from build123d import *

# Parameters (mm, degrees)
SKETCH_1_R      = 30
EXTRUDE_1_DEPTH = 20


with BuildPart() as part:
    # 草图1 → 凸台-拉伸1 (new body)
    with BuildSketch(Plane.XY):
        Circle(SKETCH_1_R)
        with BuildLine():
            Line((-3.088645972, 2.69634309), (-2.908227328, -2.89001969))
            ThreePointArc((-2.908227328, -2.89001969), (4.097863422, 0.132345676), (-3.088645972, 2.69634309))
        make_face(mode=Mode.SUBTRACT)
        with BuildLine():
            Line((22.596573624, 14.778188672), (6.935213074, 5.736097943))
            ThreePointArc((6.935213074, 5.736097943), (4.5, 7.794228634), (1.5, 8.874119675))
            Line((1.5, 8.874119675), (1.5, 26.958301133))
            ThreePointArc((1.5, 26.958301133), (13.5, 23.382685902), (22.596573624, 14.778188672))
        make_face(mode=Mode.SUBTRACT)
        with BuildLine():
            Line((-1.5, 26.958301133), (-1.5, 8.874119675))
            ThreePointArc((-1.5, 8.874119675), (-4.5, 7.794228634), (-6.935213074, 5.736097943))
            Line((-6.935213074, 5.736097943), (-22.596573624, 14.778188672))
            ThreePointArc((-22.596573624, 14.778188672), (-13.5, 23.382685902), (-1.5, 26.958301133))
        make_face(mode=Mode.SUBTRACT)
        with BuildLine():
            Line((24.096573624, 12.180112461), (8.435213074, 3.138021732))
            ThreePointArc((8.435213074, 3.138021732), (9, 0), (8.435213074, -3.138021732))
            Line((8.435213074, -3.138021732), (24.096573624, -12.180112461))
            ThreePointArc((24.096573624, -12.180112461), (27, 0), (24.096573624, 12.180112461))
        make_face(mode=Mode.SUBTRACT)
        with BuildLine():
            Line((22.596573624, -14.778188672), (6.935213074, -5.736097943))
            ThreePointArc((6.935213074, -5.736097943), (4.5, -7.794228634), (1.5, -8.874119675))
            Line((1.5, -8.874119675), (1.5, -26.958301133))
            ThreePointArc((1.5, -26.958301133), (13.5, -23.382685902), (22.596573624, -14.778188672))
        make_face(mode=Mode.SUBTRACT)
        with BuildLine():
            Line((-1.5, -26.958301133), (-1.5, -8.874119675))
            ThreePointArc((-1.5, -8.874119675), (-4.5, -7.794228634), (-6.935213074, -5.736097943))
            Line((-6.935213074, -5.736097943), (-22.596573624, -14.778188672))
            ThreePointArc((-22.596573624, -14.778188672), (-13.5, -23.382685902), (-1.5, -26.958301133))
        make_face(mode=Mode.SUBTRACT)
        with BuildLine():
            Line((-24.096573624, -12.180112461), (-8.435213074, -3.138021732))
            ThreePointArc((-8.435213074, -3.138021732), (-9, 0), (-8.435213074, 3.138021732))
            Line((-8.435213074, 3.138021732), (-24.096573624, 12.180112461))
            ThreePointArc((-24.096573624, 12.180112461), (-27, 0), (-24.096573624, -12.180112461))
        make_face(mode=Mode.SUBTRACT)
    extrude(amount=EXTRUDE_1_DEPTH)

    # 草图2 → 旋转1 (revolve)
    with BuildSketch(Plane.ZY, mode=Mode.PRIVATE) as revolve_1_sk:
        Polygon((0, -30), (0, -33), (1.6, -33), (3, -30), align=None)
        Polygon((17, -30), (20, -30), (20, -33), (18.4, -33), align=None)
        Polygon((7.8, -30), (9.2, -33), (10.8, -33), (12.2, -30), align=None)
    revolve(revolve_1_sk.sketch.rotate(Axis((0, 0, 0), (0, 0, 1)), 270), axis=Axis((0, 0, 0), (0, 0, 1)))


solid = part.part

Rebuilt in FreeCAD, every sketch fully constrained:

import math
import FreeCAD as App
import Part
import Sketcher

V = App.Vector
Q = App.Units.Quantity


def add_polygon(sketch, points):
    """Adds a closed chain of lines whose ends are joined by coincident constraints."""
    first, n = sketch.GeometryCount, len(points)
    for a, b in zip(points, points[1:] + points[:1]):
        sketch.addGeometry(Part.LineSegment(App.Vector(*a, 0), App.Vector(*b, 0)), False)
    for i in range(n):
        sketch.addConstraint(Sketcher.Constraint("Coincident", first + i, 2, first + (i + 1) % n, 1))

doc = App.newDocument("Part")
body = doc.addObject("PartDesign::Body", "Body")

sketch1 = doc.addObject("Sketcher::SketchObject", "Sketch")
body.addObject(sketch1)
sketch1.AttachmentSupport = (doc.XY_Plane, [""])
sketch1.MapMode = "FlatFace"
sketch1.addGeometry([
    Part.Circle(V(0, 0, 0), V(0, 0, 1), 30),
    Part.LineSegment(V(-1.5, -8.9, 0), V(-1.5, -27, 0)),
    Part.ArcOfCircle(Part.Circle(V(0, 0, 0), V(0, 0, 1), 27), math.radians(-147), math.radians(-93)),
    Part.LineSegment(V(-22.6, -14.8, 0), V(-6.9, -5.7, 0)),
    Part.ArcOfCircle(Part.Circle(V(0, 0, 0), V(0, 0, 1), 9), math.radians(-140), math.radians(-100)),
    Part.LineSegment(V(-8.4, -3.1, 0), V(-24.1, -12.2, 0)),
    Part.ArcOfCircle(Part.Circle(V(0, 0, 0), V(0, 0, 1), 27), math.radians(153), math.radians(207)),
    Part.LineSegment(V(-24.1, 12.2, 0), V(-8.4, 3.1, 0)),
    Part.ArcOfCircle(Part.Circle(V(0, 0, 0), V(0, 0, 1), 9), math.radians(160), math.radians(200)),
    Part.LineSegment(V(6.9, -5.7, 0), V(22.6, -14.8, 0)),
    Part.ArcOfCircle(Part.Circle(V(0, 0, 0), V(0, 0, 1), 27), math.radians(-87), math.radians(-33)),
    Part.LineSegment(V(1.5, -27, 0), V(1.5, -8.9, 0)),
    Part.ArcOfCircle(Part.Circle(V(0, 0, 0), V(0, 0, 1), 9), math.radians(-80), math.radians(-40)),
    Part.LineSegment(V(-2.9, -2.9, 0), V(-3.1, 2.7, 0)),
    Part.ArcOfCircle(Part.Circle(V(0, 0, 0), V(0, 0, 1), 4.1), math.radians(-135), math.radians(139)),
    Part.LineSegment(V(8.4, 3.1, 0), V(24.1, 12.2, 0)),
    Part.ArcOfCircle(Part.Circle(V(0, 0, 0), V(0, 0, 1), 27), math.radians(-27), math.radians(27)),
    Part.LineSegment(V(24.1, -12.2, 0), V(8.4, -3.1, 0)),
    Part.ArcOfCircle(Part.Circle(V(0, 0, 0), V(0, 0, 1), 9), math.radians(-20), math.radians(20)),
    Part.ArcOfCircle(Part.Circle(V(0, 0, 0), V(0, 0, 1), 27), math.radians(93), math.radians(147)),
    Part.LineSegment(V(-1.5, 27, 0), V(-1.5, 8.9, 0)),
    Part.ArcOfCircle(Part.Circle(V(0, 0, 0), V(0, 0, 1), 9), math.radians(100), math.radians(140)),
    Part.LineSegment(V(-6.9, 5.7, 0), V(-22.6, 14.8, 0)),
    Part.ArcOfCircle(Part.Circle(V(0, 0, 0), V(0, 0, 1), 27), math.radians(33), math.radians(87)),
    Part.LineSegment(V(22.6, 14.8, 0), V(6.9, 5.7, 0)),
    Part.ArcOfCircle(Part.Circle(V(0, 0, 0), V(0, 0, 1), 9), math.radians(40), math.radians(80)),
    Part.LineSegment(V(1.5, 8.9, 0), V(1.5, 27, 0)),
], False)
sketch1.addConstraint([
    Sketcher.Constraint("Coincident", 1, 2, 2, 2),
    Sketcher.Constraint("Coincident", 2, 1, 3, 1),
    Sketcher.Constraint("Coincident", 3, 2, 4, 1),
    Sketcher.Constraint("Coincident", 4, 2, 1, 1),
    Sketcher.Constraint("Coincident", 5, 2, 6, 2),
    Sketcher.Constraint("Coincident", 6, 1, 7, 1),
    Sketcher.Constraint("Coincident", 7, 2, 8, 1),
    Sketcher.Constraint("Coincident", 8, 2, 5, 1),
    Sketcher.Constraint("Coincident", 9, 2, 10, 2),
    Sketcher.Constraint("Coincident", 10, 1, 11, 1),
    Sketcher.Constraint("Coincident", 11, 2, 12, 1),
    Sketcher.Constraint("Coincident", 12, 2, 9, 1),
    Sketcher.Constraint("Coincident", 13, 1, 14, 1),
    Sketcher.Constraint("Coincident", 14, 2, 13, 2),
    Sketcher.Constraint("Coincident", 15, 2, 16, 2),
    Sketcher.Constraint("Coincident", 16, 1, 17, 1),
    Sketcher.Constraint("Coincident", 17, 2, 18, 1),
    Sketcher.Constraint("Coincident", 18, 2, 15, 1),
    Sketcher.Constraint("Coincident", 19, 1, 20, 1),
    Sketcher.Constraint("Coincident", 20, 2, 21, 1),
    Sketcher.Constraint("Coincident", 21, 2, 22, 1),
    Sketcher.Constraint("Coincident", 22, 2, 19, 2),
    Sketcher.Constraint("Coincident", 23, 1, 24, 1),
    Sketcher.Constraint("Coincident", 24, 2, 25, 1),
    Sketcher.Constraint("Coincident", 25, 2, 26, 1),
    Sketcher.Constraint("Coincident", 26, 2, 23, 2),
    Sketcher.Constraint("Vertical", 1),
    Sketcher.Constraint("Vertical", 11),
    Sketcher.Constraint("Vertical", 20),
    Sketcher.Constraint("Vertical", 26),
    Sketcher.Constraint("Coincident", 0, 3, -1, 1),
    Sketcher.Constraint("Coincident", 2, 3, -1, 1),
    Sketcher.Constraint("Coincident", 4, 3, -1, 1),
    Sketcher.Constraint("Coincident", 6, 3, -1, 1),
    Sketcher.Constraint("Coincident", 8, 3, -1, 1),
    Sketcher.Constraint("Coincident", 10, 3, -1, 1),
    Sketcher.Constraint("Coincident", 12, 3, -1, 1),
    Sketcher.Constraint("Coincident", 14, 3, -1, 1),
    Sketcher.Constraint("Coincident", 16, 3, -1, 1),
    Sketcher.Constraint("Coincident", 18, 3, -1, 1),
    Sketcher.Constraint("Coincident", 19, 3, -1, 1),
    Sketcher.Constraint("Coincident", 21, 3, -1, 1),
    Sketcher.Constraint("Coincident", 23, 3, -1, 1),
    Sketcher.Constraint("Coincident", 25, 3, -1, 1),
    Sketcher.Constraint("Equal", 2, 6),
    Sketcher.Constraint("Equal", 4, 8),
    Sketcher.Constraint("Equal", 6, 10),
    Sketcher.Constraint("Equal", 8, 12),
    Sketcher.Constraint("Equal", 10, 16),
    Sketcher.Constraint("Equal", 12, 18),
    Sketcher.Constraint("Equal", 16, 19),
    Sketcher.Constraint("Equal", 18, 21),
    Sketcher.Constraint("Equal", 19, 23),
    Sketcher.Constraint("Equal", 21, 25),
    Sketcher.Constraint("Parallel", 3, 5),
    Sketcher.Constraint("Parallel", 7, 9),
    Sketcher.Constraint("Parallel", 5, 15),
    Sketcher.Constraint("Parallel", 9, 17),
    Sketcher.Constraint("Parallel", 17, 22),
    Sketcher.Constraint("Parallel", 15, 24),
    Sketcher.Constraint("Horizontal", 2, 1, 9, 2),
    Sketcher.Constraint("Horizontal", 1, 2, 10, 1),
    Sketcher.Constraint("Horizontal", 3, 2, 12, 2),
    Sketcher.Constraint("Horizontal", 6, 1, 15, 2),
    Sketcher.Constraint("Horizontal", 5, 2, 16, 1),
    Sketcher.Constraint("Horizontal", 22, 2, 23, 1),
    Sketcher.Constraint("Horizontal", 20, 2, 25, 2),
    Sketcher.Constraint("Vertical", 5, 2, 6, 1),
    Sketcher.Constraint("Vertical", 4, 2, 19, 1),
    Sketcher.Constraint("Vertical", 3, 2, 21, 2),
    Sketcher.Constraint("Equal", 3, 5),
    Sketcher.Constraint("Diameter", 0, Q("60 mm")),
    Sketcher.Constraint("Radius", 2, Q("27 mm")),
    Sketcher.Constraint("Radius", 4, Q("9 mm")),
    Sketcher.Constraint("Radius", 14, Q("4.1 mm")),
    Sketcher.Constraint("Angle", 3, Q("30 deg")),
    Sketcher.Constraint("DistanceX", 1, 2, 10, 1, Q("3 mm")),
    Sketcher.Constraint("DistanceX", 5, 2, 2, 1, Q("1.5 mm")),
    Sketcher.Constraint("DistanceY", 13, 1, -1, 1, Q("2.89002 mm")),
    Sketcher.Constraint("DistanceY", 14, 2, 19, 1, Q("24.261958 mm")),
])
pad1 = doc.addObject("PartDesign::Pad", "Pad")
body.addObject(pad1)
pad1.Profile = sketch1
pad1.Length = 20

sketch2 = doc.addObject("Sketcher::SketchObject", "Sketch001")
body.addObject(sketch2)
sketch2.AttachmentSupport = (doc.YZ_Plane, [""])
sketch2.MapMode = "FlatFace"
add_polygon(sketch2, [(-30, 0), (-33, 0), (-33, 1.6), (-30, 3)])
add_polygon(sketch2, [(-30, 20), (-30, 17), (-33, 18.4), (-33, 20)])
add_polygon(sketch2, [(-30, 7.8), (-33, 9.2), (-33, 10.8), (-30, 12.2)])
sketch2.addConstraint([
    Sketcher.Constraint("Horizontal", 0),
    Sketcher.Constraint("Vertical", 1),
    Sketcher.Constraint("Vertical", 3),
    Sketcher.Constraint("Vertical", 4),
    Sketcher.Constraint("Vertical", 6),
    Sketcher.Constraint("Horizontal", 7),
    Sketcher.Constraint("Vertical", 9),
    Sketcher.Constraint("Vertical", 11),
    Sketcher.Constraint("PointOnObject", 0, 2, -1),
    Sketcher.Constraint("Parallel", 5, 8),
    Sketcher.Constraint("Parallel", 2, 10),
    Sketcher.Constraint("Vertical", 3, 2, 4, 2),
    Sketcher.Constraint("Vertical", 1, 2, 5, 2),
    Sketcher.Constraint("Vertical", 6, 2, 8, 2),
    Sketcher.Constraint("Vertical", 7, 2, 10, 2),
    Sketcher.Constraint("Equal", 7, 3),
    Sketcher.Constraint("Equal", 3, 4),
    Sketcher.Constraint("Equal", 1, 6),
    Sketcher.Constraint("Equal", 6, 9),
    Sketcher.Constraint("DistanceX", 0, 2, 0, 1, Q("3 mm")),
    Sketcher.Constraint("DistanceY", 1, 1, 1, 2, Q("1.6 mm")),
    Sketcher.Constraint("DistanceX", 0, 2, -1, 1, Q("33 mm")),
    Sketcher.Constraint("DistanceY", -1, 1, 4, 2, Q("17 mm")),
    Sketcher.Constraint("DistanceY", -1, 1, 8, 2, Q("9.2 mm")),
])
revolution = doc.addObject("PartDesign::Revolution", "Revolution")
body.addObject(revolution)
revolution.Profile = sketch2
revolution.ReferenceAxis = (sketch2, ["V_Axis"])
revolution.Angle = 360

doc.recompute()
